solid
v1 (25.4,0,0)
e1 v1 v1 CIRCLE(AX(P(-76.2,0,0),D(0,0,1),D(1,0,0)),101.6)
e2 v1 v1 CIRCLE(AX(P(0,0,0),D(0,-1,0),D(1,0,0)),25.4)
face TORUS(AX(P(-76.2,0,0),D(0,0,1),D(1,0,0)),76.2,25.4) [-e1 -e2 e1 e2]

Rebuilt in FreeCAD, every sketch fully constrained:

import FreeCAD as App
import Part
import Sketcher
from FreeCAD import Vector
Q = App.Units.Quantity

doc = App.newDocument("Part")
body = doc.addObject("PartDesign::Body", "Body")

# Sketch on XZ plane
sketch1 = doc.addObject("Sketcher::SketchObject", "Sketch")
body.addObject(sketch1)
sketch1.AttachmentSupport = (doc.XZ_Plane, [""])
sketch1.MapMode = "FlatFace"
sketch1.addGeometry(Part.Circle(Vector(0, 0, 0), Vector(0, 0, 1), 25), False)
sketch1.addConstraint(Sketcher.Constraint("Coincident", 0, 3, -1, 1))
sketch1.addConstraint(Sketcher.Constraint("Diameter", 0, Q("2 in")))

# Sketch on XY plane
sketch2 = doc.addObject("Sketcher::SketchObject", "Sketch001")
body.addObject(sketch2)
sketch2.AttachmentSupport = (doc.XY_Plane, [""])
sketch2.MapMode = "FlatFace"
sketch2.addGeometry(Part.Circle(Vector(-76, 0, 0), Vector(0, 0, 1), 76), False)
sketch2.addConstraint(Sketcher.Constraint("PointOnObject", 0, 3, -1))
sketch2.addConstraint(Sketcher.Constraint("Diameter", 0, Q("6 in")))
sketch2.addConstraint(Sketcher.Constraint("DistanceX", 0, 3, -1, 1, Q("3 in")))
doc.recompute()

additivepipe = doc.addObject("PartDesign::AdditivePipe", "AdditivePipe")
body.addObject(additivepipe)
additivepipe.Profile = sketch1
additivepipe.Spine = (sketch2, ["Edge1"])

doc.recompute()
